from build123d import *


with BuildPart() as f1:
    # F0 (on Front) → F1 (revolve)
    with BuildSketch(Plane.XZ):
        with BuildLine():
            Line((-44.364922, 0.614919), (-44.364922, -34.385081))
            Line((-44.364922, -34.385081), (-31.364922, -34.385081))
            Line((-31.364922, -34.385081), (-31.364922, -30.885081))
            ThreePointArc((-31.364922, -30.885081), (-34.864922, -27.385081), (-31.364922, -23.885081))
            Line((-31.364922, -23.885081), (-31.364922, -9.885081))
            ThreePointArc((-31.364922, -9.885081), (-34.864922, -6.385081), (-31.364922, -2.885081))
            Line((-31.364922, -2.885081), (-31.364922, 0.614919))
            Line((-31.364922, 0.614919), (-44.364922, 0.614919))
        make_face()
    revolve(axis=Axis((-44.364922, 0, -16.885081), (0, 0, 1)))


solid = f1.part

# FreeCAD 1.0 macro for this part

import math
import FreeCAD as App
import Part
import Sketcher
from FreeCAD import Vector

doc = App.newDocument("Part")
body = doc.addObject("PartDesign::Body", "Body")

# Sketch on XZ plane
sketch1 = doc.addObject("Sketcher::SketchObject", "Sketch")
body.addObject(sketch1)
sketch1.AttachmentSupport = (doc.XZ_Plane, [""])
sketch1.MapMode = "FlatFace"
sketch1.addGeometry([
    Part.LineSegment(Vector(-44.4, 0.6, 0), Vector(-44.4, -34.4, 0)),  # 0
    Part.LineSegment(Vector(-44.4, -34.4, 0), Vector(-31.4, -34.4, 0)),  # 1
    Part.LineSegment(Vector(-31.4, -34.4, 0), Vector(-31.4, -30.9, 0)),  # 2
    Part.ArcOfCircle(Part.Circle(Vector(-31.4, -27.4, 0), Vector(0, 0, 1), 3.5), math.radians(90), math.radians(270)),  # 3
    Part.LineSegment(Vector(-31.4, -23.9, 0), Vector(-31.4, -9.9, 0)),  # 4
    Part.ArcOfCircle(Part.Circle(Vector(-31.4, -6.4, 0), Vector(0, 0, 1), 3.5), math.radians(90), math.radians(270)),  # 5
    Part.LineSegment(Vector(-31.4, -2.9, 0), Vector(-31.4, 0.6, 0)),  # 6
    Part.LineSegment(Vector(-31.4, 0.6, 0), Vector(-44.4, 0.6, 0)),  # 7
], False)
sketch1.addGeometry(Part.LineSegment(Vector(-44.4, -34.4, 0), Vector(-44.4, 0.6, 0)), True)  # axis
sketch1.addConstraint([
    Sketcher.Constraint("Coincident", 0, 2, 1, 1),
    Sketcher.Constraint("Coincident", 1, 2, 2, 1),
    Sketcher.Constraint("Coincident", 2, 2, 3, 2),
    Sketcher.Constraint("Coincident", 3, 1, 4, 1),
    Sketcher.Constraint("Coincident", 4, 2, 5, 2),
    Sketcher.Constraint("Coincident", 5, 1, 6, 1),
    Sketcher.Constraint("Coincident", 6, 2, 7, 1),
    Sketcher.Constraint("Coincident", 7, 2, 0, 1),
    Sketcher.Constraint("Vertical", 0),
    Sketcher.Constraint("Horizontal", 1),
    Sketcher.Constraint("Vertical", 2),
    Sketcher.Constraint("Vertical", 4),
    Sketcher.Constraint("Vertical", 6),
    Sketcher.Constraint("Horizontal", 7),
    Sketcher.Constraint("Vertical", 8),
    Sketcher.Constraint("Coincident", 8, 1, 0, 2),
    Sketcher.Constraint("Equal", 3, 5),
    Sketcher.Constraint("Horizontal", 6, 2, 8, 2),
    Sketcher.Constraint("Vertical", 3, 3, 5, 3),
    Sketcher.Constraint("Vertical", 5, 3, 1, 2),
    Sketcher.Constraint("Vertical", 2, 2, 3, 1),
    Sketcher.Constraint("Vertical", 4, 2, 5, 1),
    Sketcher.Constraint("Equal", 2, 6),
    Sketcher.Constraint("Radius", 3, 3.5),
    Sketcher.Constraint("DistanceX", 1, 1, 1, 2, 13.0),
    Sketcher.Constraint("DistanceY", 0, 2, 0, 1, 35.0),
    Sketcher.Constraint("DistanceY", 4, 1, 4, 2, 14.0),
    Sketcher.Constraint("DistanceX", 3, 3, -1, 1, 31.364922),
    Sketcher.Constraint("DistanceY", 3, 3, -1, 1, 27.385081),
])
revolution = doc.addObject("PartDesign::Revolution", "Revolution")
body.addObject(revolution)
revolution.Profile = sketch1
revolution.ReferenceAxis = (sketch1, ["Axis0"])
revolution.Angle = 360

doc.recompute()
